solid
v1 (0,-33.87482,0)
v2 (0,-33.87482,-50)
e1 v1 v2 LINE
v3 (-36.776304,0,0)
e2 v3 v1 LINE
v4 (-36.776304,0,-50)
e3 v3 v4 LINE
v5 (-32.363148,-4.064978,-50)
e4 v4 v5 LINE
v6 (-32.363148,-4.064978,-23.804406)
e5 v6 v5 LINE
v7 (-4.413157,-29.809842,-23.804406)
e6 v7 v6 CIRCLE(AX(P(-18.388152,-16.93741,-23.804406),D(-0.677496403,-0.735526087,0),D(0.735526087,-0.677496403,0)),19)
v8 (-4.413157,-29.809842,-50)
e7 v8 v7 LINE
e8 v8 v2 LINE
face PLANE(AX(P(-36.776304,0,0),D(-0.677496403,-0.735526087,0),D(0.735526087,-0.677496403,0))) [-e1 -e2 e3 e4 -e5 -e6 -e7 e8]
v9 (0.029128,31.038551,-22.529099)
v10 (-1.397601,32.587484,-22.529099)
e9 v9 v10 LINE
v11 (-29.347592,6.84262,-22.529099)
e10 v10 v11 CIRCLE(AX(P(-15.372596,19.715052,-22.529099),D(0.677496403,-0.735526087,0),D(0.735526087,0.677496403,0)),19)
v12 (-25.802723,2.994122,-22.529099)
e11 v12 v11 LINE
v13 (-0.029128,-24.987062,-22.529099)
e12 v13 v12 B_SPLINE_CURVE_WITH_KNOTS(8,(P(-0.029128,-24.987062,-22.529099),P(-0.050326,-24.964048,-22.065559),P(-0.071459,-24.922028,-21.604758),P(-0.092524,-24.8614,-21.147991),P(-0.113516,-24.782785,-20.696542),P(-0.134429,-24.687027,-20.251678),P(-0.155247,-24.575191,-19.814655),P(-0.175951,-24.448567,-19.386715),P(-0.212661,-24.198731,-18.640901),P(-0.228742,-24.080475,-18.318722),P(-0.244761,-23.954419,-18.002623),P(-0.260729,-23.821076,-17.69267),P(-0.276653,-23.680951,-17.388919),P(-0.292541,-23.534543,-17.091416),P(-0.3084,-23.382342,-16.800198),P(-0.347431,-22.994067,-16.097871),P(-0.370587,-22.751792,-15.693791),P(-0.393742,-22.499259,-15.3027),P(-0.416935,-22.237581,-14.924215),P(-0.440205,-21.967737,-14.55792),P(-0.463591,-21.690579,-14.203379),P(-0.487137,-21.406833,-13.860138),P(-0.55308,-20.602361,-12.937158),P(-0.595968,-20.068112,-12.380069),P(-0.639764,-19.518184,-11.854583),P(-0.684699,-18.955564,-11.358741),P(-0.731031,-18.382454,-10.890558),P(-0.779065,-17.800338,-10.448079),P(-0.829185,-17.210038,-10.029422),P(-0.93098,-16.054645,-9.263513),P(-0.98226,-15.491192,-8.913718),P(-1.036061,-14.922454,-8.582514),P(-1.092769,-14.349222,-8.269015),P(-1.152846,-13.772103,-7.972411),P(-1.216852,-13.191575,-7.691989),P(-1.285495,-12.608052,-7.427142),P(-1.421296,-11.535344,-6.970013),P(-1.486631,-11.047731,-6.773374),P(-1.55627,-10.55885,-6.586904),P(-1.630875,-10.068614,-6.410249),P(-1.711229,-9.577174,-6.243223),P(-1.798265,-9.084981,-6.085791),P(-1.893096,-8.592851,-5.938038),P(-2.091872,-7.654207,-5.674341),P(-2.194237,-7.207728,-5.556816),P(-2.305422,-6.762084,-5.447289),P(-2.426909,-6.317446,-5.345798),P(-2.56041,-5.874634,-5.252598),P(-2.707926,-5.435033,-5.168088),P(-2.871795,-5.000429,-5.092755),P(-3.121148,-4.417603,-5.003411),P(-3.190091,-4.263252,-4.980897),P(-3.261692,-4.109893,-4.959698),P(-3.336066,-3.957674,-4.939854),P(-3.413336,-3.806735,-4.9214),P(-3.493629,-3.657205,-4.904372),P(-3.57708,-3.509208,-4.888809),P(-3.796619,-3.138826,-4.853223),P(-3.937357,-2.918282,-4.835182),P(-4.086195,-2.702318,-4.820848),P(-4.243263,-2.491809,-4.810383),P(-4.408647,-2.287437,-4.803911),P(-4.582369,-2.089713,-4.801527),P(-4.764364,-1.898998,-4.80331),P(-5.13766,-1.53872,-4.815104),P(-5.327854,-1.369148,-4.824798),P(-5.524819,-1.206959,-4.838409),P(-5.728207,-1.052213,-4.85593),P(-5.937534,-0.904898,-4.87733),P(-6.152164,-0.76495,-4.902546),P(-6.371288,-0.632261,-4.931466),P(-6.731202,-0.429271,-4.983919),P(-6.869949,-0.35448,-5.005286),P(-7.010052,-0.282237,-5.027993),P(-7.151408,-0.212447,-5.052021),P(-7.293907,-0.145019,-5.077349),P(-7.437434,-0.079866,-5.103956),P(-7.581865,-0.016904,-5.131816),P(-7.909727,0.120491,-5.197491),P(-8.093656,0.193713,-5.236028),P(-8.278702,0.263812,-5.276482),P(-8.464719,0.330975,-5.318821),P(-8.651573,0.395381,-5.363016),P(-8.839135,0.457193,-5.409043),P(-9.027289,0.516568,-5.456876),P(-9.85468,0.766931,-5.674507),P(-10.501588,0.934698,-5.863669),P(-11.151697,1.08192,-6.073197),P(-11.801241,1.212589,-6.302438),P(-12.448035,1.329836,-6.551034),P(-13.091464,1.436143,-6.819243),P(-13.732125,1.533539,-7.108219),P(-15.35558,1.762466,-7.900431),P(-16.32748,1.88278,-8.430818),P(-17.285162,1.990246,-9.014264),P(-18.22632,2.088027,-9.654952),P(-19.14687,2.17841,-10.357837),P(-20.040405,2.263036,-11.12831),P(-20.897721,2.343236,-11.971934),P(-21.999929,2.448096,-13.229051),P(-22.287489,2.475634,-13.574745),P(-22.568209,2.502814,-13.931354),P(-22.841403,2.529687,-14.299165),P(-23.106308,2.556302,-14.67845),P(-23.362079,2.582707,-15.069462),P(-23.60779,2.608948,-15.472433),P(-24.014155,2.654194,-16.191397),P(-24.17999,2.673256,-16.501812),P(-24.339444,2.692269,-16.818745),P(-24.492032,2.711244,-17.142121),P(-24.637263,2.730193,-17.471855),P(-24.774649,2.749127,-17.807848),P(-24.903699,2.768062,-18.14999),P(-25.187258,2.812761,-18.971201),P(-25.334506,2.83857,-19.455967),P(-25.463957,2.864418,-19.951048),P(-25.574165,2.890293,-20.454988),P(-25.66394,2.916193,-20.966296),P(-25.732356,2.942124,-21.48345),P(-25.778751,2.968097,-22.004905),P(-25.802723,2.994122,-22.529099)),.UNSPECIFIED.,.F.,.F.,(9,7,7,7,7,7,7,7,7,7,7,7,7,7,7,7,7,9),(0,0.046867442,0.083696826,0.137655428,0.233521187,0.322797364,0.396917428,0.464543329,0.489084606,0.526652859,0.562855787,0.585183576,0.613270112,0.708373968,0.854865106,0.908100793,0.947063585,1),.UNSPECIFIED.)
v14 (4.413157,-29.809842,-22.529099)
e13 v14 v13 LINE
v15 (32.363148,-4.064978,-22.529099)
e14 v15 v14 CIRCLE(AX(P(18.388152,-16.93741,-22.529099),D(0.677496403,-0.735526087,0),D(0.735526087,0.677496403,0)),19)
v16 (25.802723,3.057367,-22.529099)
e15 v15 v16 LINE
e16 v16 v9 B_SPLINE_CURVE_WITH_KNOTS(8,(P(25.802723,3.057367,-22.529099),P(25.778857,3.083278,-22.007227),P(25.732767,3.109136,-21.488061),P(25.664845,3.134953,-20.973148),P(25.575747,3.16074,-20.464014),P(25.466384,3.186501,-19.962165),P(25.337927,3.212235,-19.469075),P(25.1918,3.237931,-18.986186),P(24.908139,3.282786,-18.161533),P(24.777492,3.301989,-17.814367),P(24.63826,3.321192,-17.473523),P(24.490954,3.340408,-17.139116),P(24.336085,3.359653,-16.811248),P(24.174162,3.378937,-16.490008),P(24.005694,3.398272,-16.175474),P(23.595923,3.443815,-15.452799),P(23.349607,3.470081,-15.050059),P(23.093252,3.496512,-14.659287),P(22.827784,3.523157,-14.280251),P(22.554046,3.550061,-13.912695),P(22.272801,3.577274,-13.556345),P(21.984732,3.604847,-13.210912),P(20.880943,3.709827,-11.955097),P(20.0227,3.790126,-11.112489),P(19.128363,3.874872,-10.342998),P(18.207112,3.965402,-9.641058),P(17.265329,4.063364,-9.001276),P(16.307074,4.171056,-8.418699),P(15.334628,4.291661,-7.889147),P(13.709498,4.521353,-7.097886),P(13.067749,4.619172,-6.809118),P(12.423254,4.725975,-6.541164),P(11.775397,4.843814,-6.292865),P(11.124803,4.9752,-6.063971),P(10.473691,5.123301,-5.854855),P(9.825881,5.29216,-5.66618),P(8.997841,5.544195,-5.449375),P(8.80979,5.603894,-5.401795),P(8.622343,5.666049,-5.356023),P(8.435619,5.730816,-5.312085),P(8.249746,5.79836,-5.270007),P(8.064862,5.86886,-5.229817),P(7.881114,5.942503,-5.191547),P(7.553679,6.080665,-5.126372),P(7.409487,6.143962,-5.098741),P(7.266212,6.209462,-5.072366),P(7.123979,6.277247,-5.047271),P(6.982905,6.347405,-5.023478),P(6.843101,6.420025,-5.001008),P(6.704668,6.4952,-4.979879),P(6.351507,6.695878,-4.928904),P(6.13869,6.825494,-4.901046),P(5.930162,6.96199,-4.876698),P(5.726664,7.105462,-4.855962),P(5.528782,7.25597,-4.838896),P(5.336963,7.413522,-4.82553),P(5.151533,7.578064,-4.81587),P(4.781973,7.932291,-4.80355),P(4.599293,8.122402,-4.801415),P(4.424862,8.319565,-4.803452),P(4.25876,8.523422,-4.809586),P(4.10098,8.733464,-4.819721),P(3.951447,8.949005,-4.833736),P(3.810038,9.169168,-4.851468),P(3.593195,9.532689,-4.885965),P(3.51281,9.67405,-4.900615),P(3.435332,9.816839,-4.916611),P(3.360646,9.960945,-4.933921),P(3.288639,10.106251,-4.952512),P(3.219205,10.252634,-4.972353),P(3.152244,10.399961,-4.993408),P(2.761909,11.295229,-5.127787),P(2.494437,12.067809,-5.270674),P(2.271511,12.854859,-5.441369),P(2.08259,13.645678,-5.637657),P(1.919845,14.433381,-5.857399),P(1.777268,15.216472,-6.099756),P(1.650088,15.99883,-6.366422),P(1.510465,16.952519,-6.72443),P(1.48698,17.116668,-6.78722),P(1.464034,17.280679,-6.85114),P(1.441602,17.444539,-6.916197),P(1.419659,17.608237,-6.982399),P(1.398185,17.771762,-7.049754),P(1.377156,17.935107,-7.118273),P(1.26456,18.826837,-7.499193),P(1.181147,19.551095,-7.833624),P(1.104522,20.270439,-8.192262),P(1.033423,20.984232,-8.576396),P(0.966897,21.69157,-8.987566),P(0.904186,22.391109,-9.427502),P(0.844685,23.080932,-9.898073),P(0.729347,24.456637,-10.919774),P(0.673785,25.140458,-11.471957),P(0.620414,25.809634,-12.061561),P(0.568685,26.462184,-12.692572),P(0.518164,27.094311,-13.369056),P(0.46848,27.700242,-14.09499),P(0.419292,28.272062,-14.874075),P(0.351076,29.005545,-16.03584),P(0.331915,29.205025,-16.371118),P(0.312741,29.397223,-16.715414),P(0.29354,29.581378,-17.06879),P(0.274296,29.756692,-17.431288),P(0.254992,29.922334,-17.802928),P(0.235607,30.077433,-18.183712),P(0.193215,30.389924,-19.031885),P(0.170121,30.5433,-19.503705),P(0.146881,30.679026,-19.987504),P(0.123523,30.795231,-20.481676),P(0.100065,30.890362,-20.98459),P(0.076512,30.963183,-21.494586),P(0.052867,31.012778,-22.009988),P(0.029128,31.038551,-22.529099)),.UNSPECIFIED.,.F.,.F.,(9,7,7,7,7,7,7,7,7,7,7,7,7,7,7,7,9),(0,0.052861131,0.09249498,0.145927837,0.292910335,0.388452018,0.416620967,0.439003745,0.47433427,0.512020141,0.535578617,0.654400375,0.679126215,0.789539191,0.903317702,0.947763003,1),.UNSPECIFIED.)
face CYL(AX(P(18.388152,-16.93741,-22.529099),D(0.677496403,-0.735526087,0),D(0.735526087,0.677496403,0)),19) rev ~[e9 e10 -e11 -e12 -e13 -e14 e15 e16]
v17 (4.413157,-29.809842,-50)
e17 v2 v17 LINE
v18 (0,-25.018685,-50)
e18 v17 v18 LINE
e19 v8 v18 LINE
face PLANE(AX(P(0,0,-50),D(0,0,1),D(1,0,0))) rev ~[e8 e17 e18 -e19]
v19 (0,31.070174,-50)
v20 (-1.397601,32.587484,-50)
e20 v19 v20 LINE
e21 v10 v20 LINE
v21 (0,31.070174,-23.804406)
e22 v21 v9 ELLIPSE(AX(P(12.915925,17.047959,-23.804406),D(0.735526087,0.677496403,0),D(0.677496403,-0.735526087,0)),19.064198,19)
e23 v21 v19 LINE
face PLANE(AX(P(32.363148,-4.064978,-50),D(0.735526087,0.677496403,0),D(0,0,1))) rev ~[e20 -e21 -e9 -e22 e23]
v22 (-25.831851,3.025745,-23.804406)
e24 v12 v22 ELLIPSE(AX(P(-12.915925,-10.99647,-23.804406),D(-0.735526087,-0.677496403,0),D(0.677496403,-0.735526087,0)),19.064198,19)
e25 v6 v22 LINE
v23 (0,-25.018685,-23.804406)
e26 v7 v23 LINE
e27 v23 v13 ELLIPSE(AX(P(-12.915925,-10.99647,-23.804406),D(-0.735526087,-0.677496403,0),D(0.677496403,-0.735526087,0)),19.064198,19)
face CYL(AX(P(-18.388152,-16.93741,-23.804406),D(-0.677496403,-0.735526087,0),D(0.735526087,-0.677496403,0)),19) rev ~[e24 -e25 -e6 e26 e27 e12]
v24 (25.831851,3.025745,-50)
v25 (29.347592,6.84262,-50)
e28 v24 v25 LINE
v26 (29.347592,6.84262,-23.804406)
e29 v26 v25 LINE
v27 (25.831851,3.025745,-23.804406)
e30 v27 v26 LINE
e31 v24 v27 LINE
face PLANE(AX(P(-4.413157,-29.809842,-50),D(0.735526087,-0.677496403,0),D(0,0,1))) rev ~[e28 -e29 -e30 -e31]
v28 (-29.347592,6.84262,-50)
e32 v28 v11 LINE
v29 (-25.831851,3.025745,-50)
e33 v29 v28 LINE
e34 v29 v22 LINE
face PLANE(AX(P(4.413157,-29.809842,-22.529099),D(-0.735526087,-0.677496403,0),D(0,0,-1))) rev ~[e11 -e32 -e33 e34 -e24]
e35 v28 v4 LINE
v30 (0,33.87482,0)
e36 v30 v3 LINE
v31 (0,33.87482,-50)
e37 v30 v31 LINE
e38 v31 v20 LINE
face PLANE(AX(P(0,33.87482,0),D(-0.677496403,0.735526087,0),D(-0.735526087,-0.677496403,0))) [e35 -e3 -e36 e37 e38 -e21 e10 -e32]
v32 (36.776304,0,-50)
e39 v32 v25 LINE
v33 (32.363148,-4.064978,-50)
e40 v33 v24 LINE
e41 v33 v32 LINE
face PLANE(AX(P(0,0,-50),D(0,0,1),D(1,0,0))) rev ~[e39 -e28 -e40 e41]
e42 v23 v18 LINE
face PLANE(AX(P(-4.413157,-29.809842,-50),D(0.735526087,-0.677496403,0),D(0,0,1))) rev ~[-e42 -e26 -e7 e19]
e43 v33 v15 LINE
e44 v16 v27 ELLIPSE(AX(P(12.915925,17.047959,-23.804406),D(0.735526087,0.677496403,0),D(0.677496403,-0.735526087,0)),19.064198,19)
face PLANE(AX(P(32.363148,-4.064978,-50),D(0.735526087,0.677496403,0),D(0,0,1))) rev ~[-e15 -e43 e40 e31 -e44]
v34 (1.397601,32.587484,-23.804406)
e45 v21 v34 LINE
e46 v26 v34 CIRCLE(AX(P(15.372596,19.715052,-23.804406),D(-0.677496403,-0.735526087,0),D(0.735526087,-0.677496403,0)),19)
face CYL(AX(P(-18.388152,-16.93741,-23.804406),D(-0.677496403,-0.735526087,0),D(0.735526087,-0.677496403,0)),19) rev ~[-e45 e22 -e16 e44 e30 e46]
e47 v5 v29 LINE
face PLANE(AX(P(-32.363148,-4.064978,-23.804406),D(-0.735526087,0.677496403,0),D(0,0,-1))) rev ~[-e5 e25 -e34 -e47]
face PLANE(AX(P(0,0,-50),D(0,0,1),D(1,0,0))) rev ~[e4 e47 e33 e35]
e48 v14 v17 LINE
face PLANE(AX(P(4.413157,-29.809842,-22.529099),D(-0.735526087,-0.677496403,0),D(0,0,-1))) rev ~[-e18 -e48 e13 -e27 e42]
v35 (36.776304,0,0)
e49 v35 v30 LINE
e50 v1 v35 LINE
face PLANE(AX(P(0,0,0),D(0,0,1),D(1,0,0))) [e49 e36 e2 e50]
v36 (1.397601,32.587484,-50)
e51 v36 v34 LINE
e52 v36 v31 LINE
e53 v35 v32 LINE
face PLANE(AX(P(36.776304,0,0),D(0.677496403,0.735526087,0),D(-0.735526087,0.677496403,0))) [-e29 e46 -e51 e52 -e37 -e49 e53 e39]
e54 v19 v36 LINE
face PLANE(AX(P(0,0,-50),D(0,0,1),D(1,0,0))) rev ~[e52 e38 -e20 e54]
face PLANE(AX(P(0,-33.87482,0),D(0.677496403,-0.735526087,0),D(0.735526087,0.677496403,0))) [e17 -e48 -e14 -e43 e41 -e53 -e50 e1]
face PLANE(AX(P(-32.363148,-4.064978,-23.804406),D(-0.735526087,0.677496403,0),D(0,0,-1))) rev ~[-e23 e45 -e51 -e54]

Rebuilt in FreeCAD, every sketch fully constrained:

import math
import FreeCAD as App
import Part
import Sketcher
from FreeCAD import Vector


def add_polygon(sketch, points):
    """Adds a closed chain of lines whose ends are joined by coincident constraints."""
    first, n = sketch.GeometryCount, len(points)
    for a, b in zip(points, points[1:] + points[:1]):
        sketch.addGeometry(Part.LineSegment(App.Vector(*a, 0), App.Vector(*b, 0)), False)
    for i in range(n):
        sketch.addConstraint(Sketcher.Constraint("Coincident", first + i, 2, first + (i + 1) % n, 1))

doc = App.newDocument("Part")
body = doc.addObject("PartDesign::Body", "Body")

# Sketch on XY plane
sketch1 = doc.addObject("Sketcher::SketchObject", "Sketch")
body.addObject(sketch1)
sketch1.AttachmentSupport = (doc.XY_Plane, [""])
sketch1.MapMode = "FlatFace"
add_polygon(sketch1, [(37, 0), (0, 34), (-37, 0), (0, -34)])  # lines 0-3
sketch1.addConstraint(Sketcher.Constraint("Symmetric", 0, 2, 2, 2, -1, 1))
sketch1.addConstraint(Sketcher.Constraint("Symmetric", 1, 2, 3, 2, -1, 1))
sketch1.addConstraint(Sketcher.Constraint("PointOnObject", 0, 2, -2))
sketch1.addConstraint(Sketcher.Constraint("PointOnObject", 1, 2, -1))
sketch1.addConstraint(Sketcher.Constraint("Distance", 0, 50.0))
sketch1.addConstraint(Sketcher.Constraint("DistanceY", -1, 1, 0, 2, 33.87482))
pad1 = doc.addObject("PartDesign::Pad", "Pad")
body.addObject(pad1)
pad1.Profile = sketch1
pad1.Length = 50
pad1.Reversed = True

# Sketch on an angled plane
sketch2 = doc.addObject("Sketcher::SketchObject", "Sketch001")
body.addObject(sketch2)
sketch2.Placement = App.Placement(Vector(-16.880374, -18.326231, 0), App.Rotation(Vector(0.735526087, -0.677496403, 0), Vector(0, 0, 1.000000001), Vector(-0.677496403, -0.735526087, 0), "ZXY"))
sketch2.addGeometry(Part.LineSegment(Vector(-21, -24, 0), Vector(-21, -50, 0)), False)
sketch2.addGeometry(Part.LineSegment(Vector(-21, -50, 0), Vector(17, -50, 0)), False)
sketch2.addGeometry(Part.LineSegment(Vector(17, -50, 0), Vector(17, -24, 0)), False)
sketch2.addGeometry(Part.ArcOfCircle(Part.Circle(Vector(-2, -24, 0), Vector(0, 0, 1), 19), math.radians(0), math.radians(180)), False)
sketch2.addConstraint(Sketcher.Constraint("Coincident", 0, 2, 1, 1))
sketch2.addConstraint(Sketcher.Constraint("Coincident", 1, 2, 2, 1))
sketch2.addConstraint(Sketcher.Constraint("Tangent", 2, 2, 3, 1))
sketch2.addConstraint(Sketcher.Constraint("Tangent", 3, 2, 0, 1))
sketch2.addConstraint(Sketcher.Constraint("Vertical", 0))
sketch2.addConstraint(Sketcher.Constraint("Horizontal", 1))
sketch2.addConstraint(Sketcher.Constraint("Vertical", 2))
sketch2.addConstraint(Sketcher.Constraint("Radius", 3, 19.0))
sketch2.addConstraint(Sketcher.Constraint("DistanceY", 0, 2, -1, 1, 50.0))
sketch2.addConstraint(Sketcher.Constraint("DistanceY", 0, 2, 0, 1, 26.195594))
sketch2.addConstraint(Sketcher.Constraint("DistanceX", 3, 3, -1, 1, 2.049931))
pocket1 = doc.addObject("PartDesign::Pocket", "Pocket")
body.addObject(pocket1)
pocket1.Profile = sketch2
pocket1.Length = 50

# Sketch on an angled plane
sketch3 = doc.addObject("Sketcher::SketchObject", "Sketch002")
body.addObject(sketch3)
sketch3.Placement = App.Placement(Vector(16.880374, -18.326231, 0), App.Rotation(Vector(0.735526087, 0.677496403, 0), Vector(0, 0, 1.000000001), Vector(0.677496403, -0.735526087, 0), "ZXY"))
sketch3.addGeometry(Part.LineSegment(Vector(-17, -23, 0), Vector(-17, -50, 0)), False)
sketch3.addGeometry(Part.LineSegment(Vector(-17, -50, 0), Vector(21, -50, 0)), False)
sketch3.addGeometry(Part.LineSegment(Vector(21, -50, 0), Vector(21, -23, 0)), False)
sketch3.addGeometry(Part.ArcOfCircle(Part.Circle(Vector(2, -23, 0), Vector(0, 0, 1), 19), math.radians(0), math.radians(180)), False)
sketch3.addConstraint(Sketcher.Constraint("Coincident", 0, 2, 1, 1))
sketch3.addConstraint(Sketcher.Constraint("Coincident", 1, 2, 2, 1))
sketch3.addConstraint(Sketcher.Constraint("Tangent", 2, 2, 3, 1))
sketch3.addConstraint(Sketcher.Constraint("Tangent", 3, 2, 0, 1))
sketch3.addConstraint(Sketcher.Constraint("Vertical", 0))
sketch3.addConstraint(Sketcher.Constraint("Horizontal", 1))
sketch3.addConstraint(Sketcher.Constraint("Vertical", 2))
sketch3.addConstraint(Sketcher.Constraint("Radius", 3, 19.0))
sketch3.addConstraint(Sketcher.Constraint("DistanceY", 0, 2, -1, 1, 50.0))
sketch3.addConstraint(Sketcher.Constraint("DistanceY", 0, 2, 0, 1, 27.470901))
sketch3.addConstraint(Sketcher.Constraint("DistanceX", -1, 1, 3, 3, 2.049931))
pocket2 = doc.addObject("PartDesign::Pocket", "Pocket001")
body.addObject(pocket2)
pocket2.Profile = sketch3
pocket2.Type = "ThroughAll"

doc.recompute()
